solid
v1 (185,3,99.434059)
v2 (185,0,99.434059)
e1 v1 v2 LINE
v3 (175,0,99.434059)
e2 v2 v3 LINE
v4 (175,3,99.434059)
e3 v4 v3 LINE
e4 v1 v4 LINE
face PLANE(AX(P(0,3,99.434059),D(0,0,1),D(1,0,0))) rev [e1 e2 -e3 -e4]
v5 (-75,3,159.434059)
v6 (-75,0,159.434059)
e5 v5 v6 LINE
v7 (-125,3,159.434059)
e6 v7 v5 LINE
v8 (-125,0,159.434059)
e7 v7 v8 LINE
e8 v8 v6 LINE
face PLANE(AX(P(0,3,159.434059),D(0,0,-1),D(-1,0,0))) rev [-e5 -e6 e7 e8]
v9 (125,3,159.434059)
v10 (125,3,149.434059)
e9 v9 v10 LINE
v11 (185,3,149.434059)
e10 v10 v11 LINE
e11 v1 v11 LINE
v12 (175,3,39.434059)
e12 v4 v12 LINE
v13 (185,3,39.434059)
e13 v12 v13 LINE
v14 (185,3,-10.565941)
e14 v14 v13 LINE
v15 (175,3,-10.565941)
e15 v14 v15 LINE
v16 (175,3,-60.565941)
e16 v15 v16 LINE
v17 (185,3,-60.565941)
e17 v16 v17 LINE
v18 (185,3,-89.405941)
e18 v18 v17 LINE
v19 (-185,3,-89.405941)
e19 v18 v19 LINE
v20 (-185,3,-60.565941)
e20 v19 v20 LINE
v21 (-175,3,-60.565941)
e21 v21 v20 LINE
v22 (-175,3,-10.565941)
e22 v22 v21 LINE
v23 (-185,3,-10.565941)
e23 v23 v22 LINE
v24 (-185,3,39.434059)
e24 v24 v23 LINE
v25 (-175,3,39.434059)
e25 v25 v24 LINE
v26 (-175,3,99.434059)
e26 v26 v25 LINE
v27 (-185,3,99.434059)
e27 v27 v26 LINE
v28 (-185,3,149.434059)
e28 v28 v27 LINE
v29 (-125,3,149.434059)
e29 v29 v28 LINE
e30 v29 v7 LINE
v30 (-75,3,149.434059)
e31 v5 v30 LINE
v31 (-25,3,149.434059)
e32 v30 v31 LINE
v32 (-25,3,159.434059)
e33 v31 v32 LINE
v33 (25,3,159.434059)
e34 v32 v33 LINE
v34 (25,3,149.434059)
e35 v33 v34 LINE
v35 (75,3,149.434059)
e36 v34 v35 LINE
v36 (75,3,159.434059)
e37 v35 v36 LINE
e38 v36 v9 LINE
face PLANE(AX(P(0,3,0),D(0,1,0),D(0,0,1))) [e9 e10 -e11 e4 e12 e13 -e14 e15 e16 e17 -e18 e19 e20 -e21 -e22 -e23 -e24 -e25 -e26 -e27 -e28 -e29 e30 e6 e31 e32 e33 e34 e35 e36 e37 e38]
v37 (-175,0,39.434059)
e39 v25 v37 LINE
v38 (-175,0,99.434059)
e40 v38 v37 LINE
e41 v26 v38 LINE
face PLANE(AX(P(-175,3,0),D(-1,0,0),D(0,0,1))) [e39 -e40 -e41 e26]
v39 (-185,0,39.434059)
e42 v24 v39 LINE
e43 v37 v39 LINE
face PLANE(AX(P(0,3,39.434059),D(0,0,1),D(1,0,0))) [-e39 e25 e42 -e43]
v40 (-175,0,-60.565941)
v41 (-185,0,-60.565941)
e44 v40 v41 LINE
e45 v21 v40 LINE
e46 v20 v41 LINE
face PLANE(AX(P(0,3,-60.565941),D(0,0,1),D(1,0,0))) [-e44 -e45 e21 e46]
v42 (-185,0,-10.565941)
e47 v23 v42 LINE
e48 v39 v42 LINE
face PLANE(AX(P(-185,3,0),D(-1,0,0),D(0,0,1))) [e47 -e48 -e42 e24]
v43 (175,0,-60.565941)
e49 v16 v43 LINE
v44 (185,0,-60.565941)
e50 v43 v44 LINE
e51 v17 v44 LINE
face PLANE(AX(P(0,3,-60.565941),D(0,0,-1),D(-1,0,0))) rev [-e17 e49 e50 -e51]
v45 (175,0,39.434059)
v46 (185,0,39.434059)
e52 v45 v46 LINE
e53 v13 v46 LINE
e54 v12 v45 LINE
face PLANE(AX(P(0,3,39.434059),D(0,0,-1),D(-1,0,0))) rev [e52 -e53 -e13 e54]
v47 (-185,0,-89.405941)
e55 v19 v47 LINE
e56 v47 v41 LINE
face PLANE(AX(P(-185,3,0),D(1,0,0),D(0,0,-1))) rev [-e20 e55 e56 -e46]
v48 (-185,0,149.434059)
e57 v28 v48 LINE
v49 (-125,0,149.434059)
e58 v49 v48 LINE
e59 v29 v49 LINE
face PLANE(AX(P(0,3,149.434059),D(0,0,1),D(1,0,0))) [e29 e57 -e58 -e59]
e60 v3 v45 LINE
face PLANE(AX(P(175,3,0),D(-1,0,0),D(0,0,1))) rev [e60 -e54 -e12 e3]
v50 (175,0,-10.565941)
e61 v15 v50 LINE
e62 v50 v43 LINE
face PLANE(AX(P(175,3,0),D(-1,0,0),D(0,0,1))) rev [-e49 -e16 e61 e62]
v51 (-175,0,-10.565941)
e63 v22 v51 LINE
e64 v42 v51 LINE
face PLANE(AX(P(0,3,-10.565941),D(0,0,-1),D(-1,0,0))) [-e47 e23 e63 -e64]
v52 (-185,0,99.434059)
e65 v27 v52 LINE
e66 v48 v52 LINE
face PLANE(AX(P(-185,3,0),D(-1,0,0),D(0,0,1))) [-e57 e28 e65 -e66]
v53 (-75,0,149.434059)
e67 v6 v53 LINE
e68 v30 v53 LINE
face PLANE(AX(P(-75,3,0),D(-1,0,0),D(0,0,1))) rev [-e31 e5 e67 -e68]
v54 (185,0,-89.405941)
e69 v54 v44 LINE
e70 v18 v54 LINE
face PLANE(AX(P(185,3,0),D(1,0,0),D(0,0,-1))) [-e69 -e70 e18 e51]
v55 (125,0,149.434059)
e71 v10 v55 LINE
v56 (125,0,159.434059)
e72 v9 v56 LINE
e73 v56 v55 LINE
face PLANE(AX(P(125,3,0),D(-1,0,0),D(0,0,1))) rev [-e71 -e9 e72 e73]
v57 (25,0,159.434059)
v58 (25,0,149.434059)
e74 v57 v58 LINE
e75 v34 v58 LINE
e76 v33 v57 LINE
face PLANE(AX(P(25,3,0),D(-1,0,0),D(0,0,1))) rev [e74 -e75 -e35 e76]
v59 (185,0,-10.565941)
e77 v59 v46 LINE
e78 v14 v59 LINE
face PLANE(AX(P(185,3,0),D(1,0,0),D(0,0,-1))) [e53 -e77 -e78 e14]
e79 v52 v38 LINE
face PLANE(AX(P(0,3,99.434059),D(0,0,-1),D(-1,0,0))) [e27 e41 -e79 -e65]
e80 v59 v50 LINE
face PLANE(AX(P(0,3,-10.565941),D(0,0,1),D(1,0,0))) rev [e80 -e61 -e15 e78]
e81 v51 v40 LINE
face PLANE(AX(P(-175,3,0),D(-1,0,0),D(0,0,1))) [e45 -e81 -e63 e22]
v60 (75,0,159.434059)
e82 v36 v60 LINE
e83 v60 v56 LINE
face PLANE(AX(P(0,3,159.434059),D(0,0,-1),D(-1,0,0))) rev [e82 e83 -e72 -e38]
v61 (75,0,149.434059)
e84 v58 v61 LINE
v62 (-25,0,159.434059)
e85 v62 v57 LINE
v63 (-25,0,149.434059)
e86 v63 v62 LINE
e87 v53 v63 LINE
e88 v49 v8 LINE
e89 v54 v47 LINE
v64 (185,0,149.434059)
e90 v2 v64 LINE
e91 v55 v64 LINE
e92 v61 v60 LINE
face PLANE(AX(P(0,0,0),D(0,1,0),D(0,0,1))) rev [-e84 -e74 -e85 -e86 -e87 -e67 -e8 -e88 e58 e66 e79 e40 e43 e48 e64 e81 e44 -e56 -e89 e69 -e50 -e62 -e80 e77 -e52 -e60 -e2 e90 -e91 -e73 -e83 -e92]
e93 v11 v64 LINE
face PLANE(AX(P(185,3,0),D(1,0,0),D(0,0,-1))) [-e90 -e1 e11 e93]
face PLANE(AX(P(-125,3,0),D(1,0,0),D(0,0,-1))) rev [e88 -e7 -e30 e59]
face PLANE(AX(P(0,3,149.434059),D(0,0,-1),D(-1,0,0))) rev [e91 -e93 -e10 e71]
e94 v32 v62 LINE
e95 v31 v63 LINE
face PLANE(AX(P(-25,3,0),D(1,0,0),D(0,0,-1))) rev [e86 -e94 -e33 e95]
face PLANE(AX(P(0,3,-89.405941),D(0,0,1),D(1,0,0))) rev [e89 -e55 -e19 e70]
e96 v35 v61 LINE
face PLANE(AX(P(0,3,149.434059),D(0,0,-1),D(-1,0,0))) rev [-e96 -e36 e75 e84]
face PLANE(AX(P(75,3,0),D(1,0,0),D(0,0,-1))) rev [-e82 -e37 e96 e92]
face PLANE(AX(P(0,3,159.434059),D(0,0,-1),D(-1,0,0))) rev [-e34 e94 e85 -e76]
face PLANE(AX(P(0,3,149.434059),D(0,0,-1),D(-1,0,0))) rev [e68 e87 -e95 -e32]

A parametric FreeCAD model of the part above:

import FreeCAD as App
import Part
import Sketcher
Q = App.Units.Quantity


def add_polygon(sketch, points):
    """Adds a closed chain of lines whose ends are joined by coincident constraints."""
    first, n = sketch.GeometryCount, len(points)
    for a, b in zip(points, points[1:] + points[:1]):
        sketch.addGeometry(Part.LineSegment(App.Vector(*a, 0), App.Vector(*b, 0)), False)
    for i in range(n):
        sketch.addConstraint(Sketcher.Constraint("Coincident", first + i, 2, first + (i + 1) % n, 1))

doc = App.newDocument("Part")
body = doc.addObject("PartDesign::Body", "Body")

# Sketch on XZ plane
sketch1 = body.newObject("Sketcher::SketchObject", "Sketch")
sketch1.AttachmentSupport = (doc.getObject("XZ_Plane"), [""])
sketch1.MapMode = "FlatFace"
add_polygon(sketch1, [(185, -61), (185, -89), (-185, -89), (-185, -61), (-175, -61), (-175, -11), (-185, -11), (-185, 39), (-175, 39), (-175, 99), (-185, 99), (-185, 149), (-125, 149), (-125, 159), (-75, 159), (-75, 149), (-25, 149), (-25, 159), (25, 159), (25, 149), (75, 149), (75, 159), (125, 159), (125, 149), (185, 149), (185, 99), (175, 99), (175, 39), (185, 39), (185, -11), (175, -11), (175, -61)])  # lines 0-31
sketch1.addConstraint([
    Sketcher.Constraint("Vertical", 0),
    Sketcher.Constraint("Horizontal", 1),
    Sketcher.Constraint("Vertical", 2),
    Sketcher.Constraint("Horizontal", 3),
    Sketcher.Constraint("Vertical", 4),
    Sketcher.Constraint("Horizontal", 5),
    Sketcher.Constraint("Vertical", 6),
    Sketcher.Constraint("Horizontal", 7),
    Sketcher.Constraint("Vertical", 8),
    Sketcher.Constraint("Horizontal", 9),
    Sketcher.Constraint("Vertical", 10),
    Sketcher.Constraint("Horizontal", 11),
    Sketcher.Constraint("Vertical", 12),
    Sketcher.Constraint("Horizontal", 13),
    Sketcher.Constraint("Vertical", 14),
    Sketcher.Constraint("Horizontal", 15),
    Sketcher.Constraint("Vertical", 16),
    Sketcher.Constraint("Horizontal", 17),
    Sketcher.Constraint("Vertical", 18),
    Sketcher.Constraint("Horizontal", 19),
    Sketcher.Constraint("Vertical", 20),
    Sketcher.Constraint("Horizontal", 21),
    Sketcher.Constraint("Vertical", 22),
    Sketcher.Constraint("Horizontal", 23),
    Sketcher.Constraint("Vertical", 24),
    Sketcher.Constraint("Horizontal", 25),
    Sketcher.Constraint("Vertical", 26),
    Sketcher.Constraint("Horizontal", 27),
    Sketcher.Constraint("Vertical", 28),
    Sketcher.Constraint("Horizontal", 29),
    Sketcher.Constraint("Vertical", 30),
    Sketcher.Constraint("Horizontal", 31),
    Sketcher.Constraint("Symmetric", 15, 2, 18, 2, -2),
    Sketcher.Constraint("Symmetric", 13, 2, 20, 2, -2),
    Sketcher.Constraint("Symmetric", 11, 2, 22, 2, -2),
    Sketcher.Constraint("Symmetric", 9, 2, 24, 2, -2),
    Sketcher.Constraint("Symmetric", 7, 2, 26, 2, -2),
    Sketcher.Constraint("Symmetric", 5, 2, 28, 2, -2),
    Sketcher.Constraint("Symmetric", 3, 2, 30, 2, -2),
    Sketcher.Constraint("Horizontal", 11, 2, 14, 2),
    Sketcher.Constraint("Horizontal", 13, 2, 16, 2),
    Sketcher.Constraint("Vertical", 2, 2, 5, 2),
    Sketcher.Constraint("Vertical", 4, 2, 7, 2),
    Sketcher.Constraint("Vertical", 6, 2, 9, 2),
    Sketcher.Constraint("Vertical", 0, 2, 23, 2),
    Sketcher.Constraint("Equal", 13, 15),
    Sketcher.Constraint("Equal", 15, 17),
    Sketcher.Constraint("Equal", 21, 4),
    Sketcher.Constraint("Equal", 4, 6),
    Sketcher.Constraint("Equal", 23, 8),
    Sketcher.Constraint("Equal", 6, 10),
    Sketcher.Constraint("Equal", 31, 12),
    Sketcher.Constraint("DistanceX", 1, 2, 1, 1, Q("370 mm")),
    Sketcher.Constraint("DistanceX", 3, 1, 3, 2, Q("10 mm")),
    Sketcher.Constraint("DistanceX", 11, 1, 11, 2, Q("60 mm")),
    Sketcher.Constraint("DistanceY", 0, 2, 0, 1, Q("28.84 mm")),
    Sketcher.Constraint("DistanceY", 0, 2, -1, 1, Q("89.405941 mm")),
])
pad1 = body.newObject("PartDesign::Pad", "Pad")
pad1.Profile = sketch1
pad1.Length = 3
pad1.Reversed = True

doc.recompute()
